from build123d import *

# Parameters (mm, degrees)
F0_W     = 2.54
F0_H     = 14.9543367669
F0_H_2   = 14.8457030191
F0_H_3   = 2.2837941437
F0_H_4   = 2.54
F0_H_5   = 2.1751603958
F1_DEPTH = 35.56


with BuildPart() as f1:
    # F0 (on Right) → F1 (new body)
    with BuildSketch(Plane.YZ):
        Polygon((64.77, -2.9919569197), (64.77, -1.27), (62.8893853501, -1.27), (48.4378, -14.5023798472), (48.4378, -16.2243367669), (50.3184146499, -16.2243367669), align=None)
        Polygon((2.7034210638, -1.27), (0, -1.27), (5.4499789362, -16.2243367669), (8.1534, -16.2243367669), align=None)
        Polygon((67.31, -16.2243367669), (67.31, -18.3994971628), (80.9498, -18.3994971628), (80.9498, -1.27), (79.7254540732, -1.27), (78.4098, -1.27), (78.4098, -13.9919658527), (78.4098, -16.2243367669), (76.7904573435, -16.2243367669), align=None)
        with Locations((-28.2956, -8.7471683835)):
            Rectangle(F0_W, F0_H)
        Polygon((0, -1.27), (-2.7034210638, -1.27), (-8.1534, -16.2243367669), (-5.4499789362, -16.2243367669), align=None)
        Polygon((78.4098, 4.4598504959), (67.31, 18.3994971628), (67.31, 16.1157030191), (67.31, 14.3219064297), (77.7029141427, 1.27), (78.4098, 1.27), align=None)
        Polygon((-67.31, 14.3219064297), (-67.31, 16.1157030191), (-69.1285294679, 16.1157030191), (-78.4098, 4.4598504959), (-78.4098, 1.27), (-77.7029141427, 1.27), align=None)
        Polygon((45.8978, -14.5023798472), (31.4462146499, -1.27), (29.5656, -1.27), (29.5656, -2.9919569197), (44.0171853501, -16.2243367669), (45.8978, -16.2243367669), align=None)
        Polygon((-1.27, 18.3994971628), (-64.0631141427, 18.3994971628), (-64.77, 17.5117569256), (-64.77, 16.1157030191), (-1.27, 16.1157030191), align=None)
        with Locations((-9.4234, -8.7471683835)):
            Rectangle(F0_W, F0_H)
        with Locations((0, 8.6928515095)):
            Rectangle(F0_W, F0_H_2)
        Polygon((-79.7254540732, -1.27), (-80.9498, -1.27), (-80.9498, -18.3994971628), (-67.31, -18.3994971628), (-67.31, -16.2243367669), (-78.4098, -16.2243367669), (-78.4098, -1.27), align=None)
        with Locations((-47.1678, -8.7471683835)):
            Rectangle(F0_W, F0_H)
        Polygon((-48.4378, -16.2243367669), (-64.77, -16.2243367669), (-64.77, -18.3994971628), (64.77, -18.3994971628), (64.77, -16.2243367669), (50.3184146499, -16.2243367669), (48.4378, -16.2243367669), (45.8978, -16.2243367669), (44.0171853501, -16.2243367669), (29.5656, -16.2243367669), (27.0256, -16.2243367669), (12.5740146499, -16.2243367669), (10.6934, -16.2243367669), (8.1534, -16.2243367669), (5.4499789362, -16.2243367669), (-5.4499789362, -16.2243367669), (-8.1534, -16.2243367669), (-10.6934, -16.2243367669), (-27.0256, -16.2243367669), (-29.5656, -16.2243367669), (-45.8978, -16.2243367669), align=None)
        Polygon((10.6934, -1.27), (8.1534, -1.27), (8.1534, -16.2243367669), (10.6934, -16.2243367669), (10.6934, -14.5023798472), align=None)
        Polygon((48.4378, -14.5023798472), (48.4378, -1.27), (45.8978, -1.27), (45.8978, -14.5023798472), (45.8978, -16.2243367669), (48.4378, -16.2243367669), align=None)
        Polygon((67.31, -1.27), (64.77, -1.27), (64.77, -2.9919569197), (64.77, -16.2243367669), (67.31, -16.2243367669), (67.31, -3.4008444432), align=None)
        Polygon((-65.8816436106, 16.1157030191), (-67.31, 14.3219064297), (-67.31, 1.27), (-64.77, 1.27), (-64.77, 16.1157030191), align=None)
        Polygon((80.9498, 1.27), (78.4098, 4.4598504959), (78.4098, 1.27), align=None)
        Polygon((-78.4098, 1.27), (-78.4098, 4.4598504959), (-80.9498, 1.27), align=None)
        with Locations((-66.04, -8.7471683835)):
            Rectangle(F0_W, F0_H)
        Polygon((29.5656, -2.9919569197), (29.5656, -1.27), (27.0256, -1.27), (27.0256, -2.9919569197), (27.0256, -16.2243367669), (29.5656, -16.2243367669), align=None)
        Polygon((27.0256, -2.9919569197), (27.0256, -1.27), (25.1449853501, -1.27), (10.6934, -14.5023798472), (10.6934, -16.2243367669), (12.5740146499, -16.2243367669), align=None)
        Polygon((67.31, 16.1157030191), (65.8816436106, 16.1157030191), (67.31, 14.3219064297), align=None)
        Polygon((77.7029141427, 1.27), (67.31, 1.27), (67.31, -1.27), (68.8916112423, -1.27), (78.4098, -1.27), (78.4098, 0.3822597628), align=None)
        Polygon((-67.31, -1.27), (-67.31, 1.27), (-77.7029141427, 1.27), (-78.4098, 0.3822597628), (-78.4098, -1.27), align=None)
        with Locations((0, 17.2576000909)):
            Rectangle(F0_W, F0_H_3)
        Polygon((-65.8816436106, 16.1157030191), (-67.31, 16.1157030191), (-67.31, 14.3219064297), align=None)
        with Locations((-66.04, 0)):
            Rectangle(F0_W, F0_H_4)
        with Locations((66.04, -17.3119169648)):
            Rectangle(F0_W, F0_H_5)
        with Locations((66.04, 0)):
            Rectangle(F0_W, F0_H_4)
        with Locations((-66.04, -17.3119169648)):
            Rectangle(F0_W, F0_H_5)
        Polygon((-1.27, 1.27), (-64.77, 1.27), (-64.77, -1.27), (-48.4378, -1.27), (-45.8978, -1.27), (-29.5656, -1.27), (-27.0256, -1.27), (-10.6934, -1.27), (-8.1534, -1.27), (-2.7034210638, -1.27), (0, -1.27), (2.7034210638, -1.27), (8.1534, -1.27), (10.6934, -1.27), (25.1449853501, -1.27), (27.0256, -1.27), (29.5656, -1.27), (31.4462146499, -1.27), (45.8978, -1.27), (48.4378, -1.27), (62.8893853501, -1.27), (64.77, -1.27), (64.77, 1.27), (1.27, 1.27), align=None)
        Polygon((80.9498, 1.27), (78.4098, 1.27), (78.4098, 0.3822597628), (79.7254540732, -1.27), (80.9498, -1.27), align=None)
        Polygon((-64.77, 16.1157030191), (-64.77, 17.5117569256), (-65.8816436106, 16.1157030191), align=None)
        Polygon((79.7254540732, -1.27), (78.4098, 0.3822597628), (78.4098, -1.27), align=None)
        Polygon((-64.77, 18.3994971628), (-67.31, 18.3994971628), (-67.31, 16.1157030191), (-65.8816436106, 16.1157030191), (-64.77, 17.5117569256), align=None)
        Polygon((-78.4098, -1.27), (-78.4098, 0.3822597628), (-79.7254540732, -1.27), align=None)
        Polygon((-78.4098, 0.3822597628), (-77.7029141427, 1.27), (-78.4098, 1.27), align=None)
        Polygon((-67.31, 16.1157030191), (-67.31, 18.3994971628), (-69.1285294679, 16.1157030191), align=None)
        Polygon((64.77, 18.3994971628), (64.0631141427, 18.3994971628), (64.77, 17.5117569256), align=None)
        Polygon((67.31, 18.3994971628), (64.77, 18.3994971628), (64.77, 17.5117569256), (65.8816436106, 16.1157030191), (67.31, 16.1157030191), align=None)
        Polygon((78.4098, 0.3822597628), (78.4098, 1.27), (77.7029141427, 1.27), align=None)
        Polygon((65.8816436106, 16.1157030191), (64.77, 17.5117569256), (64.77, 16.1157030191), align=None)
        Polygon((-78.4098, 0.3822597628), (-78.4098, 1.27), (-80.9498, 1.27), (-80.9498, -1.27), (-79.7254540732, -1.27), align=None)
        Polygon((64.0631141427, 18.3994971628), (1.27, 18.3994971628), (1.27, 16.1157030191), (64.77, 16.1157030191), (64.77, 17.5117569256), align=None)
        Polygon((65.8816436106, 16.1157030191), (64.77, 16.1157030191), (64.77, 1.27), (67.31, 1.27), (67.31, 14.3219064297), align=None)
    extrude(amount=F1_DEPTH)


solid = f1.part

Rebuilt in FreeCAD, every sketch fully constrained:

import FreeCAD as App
import Part
import Sketcher

V = App.Vector
Q = App.Units.Quantity


def add_polygon(sketch, points):
    """Adds a closed chain of lines whose ends are joined by coincident constraints."""
    first, n = sketch.GeometryCount, len(points)
    for a, b in zip(points, points[1:] + points[:1]):
        sketch.addGeometry(Part.LineSegment(App.Vector(*a, 0), App.Vector(*b, 0)), False)
    for i in range(n):
        sketch.addConstraint(Sketcher.Constraint("Coincident", first + i, 2, first + (i + 1) % n, 1))

doc = App.newDocument("Part")
body = doc.addObject("PartDesign::Body", "Body")

# Sketch on YZ plane
sketch1 = body.newObject("Sketcher::SketchObject", "Sketch")
sketch1.AttachmentSupport = (doc.getObject("YZ_Plane"), [""])
sketch1.MapMode = "FlatFace"
add_polygon(sketch1, [(-64.063114, 18.399497), (-64.77, 17.511757), (-64.77, 18.399497), (-67.31, 18.399497), (-69.128529, 16.115703), (-78.4098, 4.45985), (-80.9498, 1.27), (-80.9498, -18.399497), (80.9498, -18.399497), (80.9498, 1.27), (78.4098, 4.45985), (67.31, 18.399497)])  # lines 0-11
add_polygon(sketch1, [(67.31, 14.321906), (77.702914, 1.27), (67.31, 1.27)])  # lines 12-14
add_polygon(sketch1, [(64.77, 1.27), (1.27, 1.27), (1.27, 16.115703), (64.77, 16.115703)])  # lines 15-18
add_polygon(sketch1, [(-78.4098, -16.224337), (-78.4098, -1.27), (-67.31, -1.27), (-67.31, -16.224337)])  # lines 19-22
add_polygon(sketch1, [(-48.4378, -16.224337), (-64.77, -16.224337), (-64.77, -1.27), (-48.4378, -1.27)])  # lines 23-26
add_polygon(sketch1, [(-45.8978, -16.224337), (-45.8978, -1.27), (-29.5656, -1.27), (-29.5656, -16.224337)])  # lines 27-30
add_polygon(sketch1, [(-27.0256, -16.224337), (-27.0256, -1.27), (-10.6934, -1.27), (-10.6934, -16.224337)])  # lines 31-34
add_polygon(sketch1, [(-8.1534, -16.224337), (-8.1534, -1.27), (-2.703421, -1.27)])  # lines 35-37
add_polygon(sketch1, [(-5.449979, -16.224337), (0, -1.27), (5.449979, -16.224337)])  # lines 38-40
add_polygon(sketch1, [(8.1534, -16.224337), (2.703421, -1.27), (8.1534, -1.27)])  # lines 41-43
add_polygon(sketch1, [(27.0256, -16.224337), (12.574015, -16.224337), (27.0256, -2.991957)])  # lines 44-46
add_polygon(sketch1, [(44.017185, -16.224337), (29.5656, -16.224337), (29.5656, -2.991957)])  # lines 47-49
add_polygon(sketch1, [(64.77, -2.991957), (64.77, -16.224337), (50.318415, -16.224337)])  # lines 50-52
add_polygon(sketch1, [(67.31, -1.27), (78.4098, -1.27), (78.4098, -16.224337), (67.31, -16.224337)])  # lines 53-56
add_polygon(sketch1, [(10.6934, -14.50238), (10.6934, -1.27), (25.144985, -1.27)])  # lines 57-59
add_polygon(sketch1, [(45.8978, -14.50238), (31.446215, -1.27), (45.8978, -1.27)])  # lines 60-62
add_polygon(sketch1, [(48.4378, -14.50238), (48.4378, -1.27), (62.889385, -1.27)])  # lines 63-65
add_polygon(sketch1, [(-67.31, 1.27), (-77.702914, 1.27), (-67.31, 14.321906)])  # lines 66-68
add_polygon(sketch1, [(-64.77, 1.27), (-64.77, 16.115703), (-1.27, 16.115703), (-1.27, 1.27)])  # lines 69-72
sketch1.addConstraint([
    Sketcher.Constraint("Vertical", 1),
    Sketcher.Constraint("Horizontal", 2),
    Sketcher.Constraint("Vertical", 6),
    Sketcher.Constraint("Horizontal", 7),
    Sketcher.Constraint("Vertical", 8),
    Sketcher.Constraint("Horizontal", 11),
    Sketcher.Constraint("Horizontal", 13),
    Sketcher.Constraint("Vertical", 14),
    Sketcher.Constraint("Horizontal", 15),
    Sketcher.Constraint("Vertical", 16),
    Sketcher.Constraint("Horizontal", 17),
    Sketcher.Constraint("Vertical", 18),
    Sketcher.Constraint("Vertical", 19),
    Sketcher.Constraint("Horizontal", 20),
    Sketcher.Constraint("Vertical", 21),
    Sketcher.Constraint("Horizontal", 22),
    Sketcher.Constraint("Horizontal", 23),
    Sketcher.Constraint("Vertical", 24),
    Sketcher.Constraint("Horizontal", 25),
    Sketcher.Constraint("Vertical", 26),
    Sketcher.Constraint("Vertical", 27),
    Sketcher.Constraint("Horizontal", 28),
    Sketcher.Constraint("Vertical", 29),
    Sketcher.Constraint("Horizontal", 30),
    Sketcher.Constraint("Vertical", 31),
    Sketcher.Constraint("Horizontal", 32),
    Sketcher.Constraint("Vertical", 33),
    Sketcher.Constraint("Horizontal", 34),
    Sketcher.Constraint("Vertical", 35),
    Sketcher.Constraint("Horizontal", 36),
    Sketcher.Constraint("Horizontal", 40),
    Sketcher.Constraint("Horizontal", 42),
    Sketcher.Constraint("Vertical", 43),
    Sketcher.Constraint("Horizontal", 44),
    Sketcher.Constraint("Vertical", 46),
    Sketcher.Constraint("Horizontal", 47),
    Sketcher.Constraint("Vertical", 48),
    Sketcher.Constraint("Vertical", 50),
    Sketcher.Constraint("Horizontal", 51),
    Sketcher.Constraint("Horizontal", 53),
    Sketcher.Constraint("Vertical", 54),
    Sketcher.Constraint("Horizontal", 55),
    Sketcher.Constraint("Vertical", 56),
    Sketcher.Constraint("Vertical", 57),
    Sketcher.Constraint("Horizontal", 58),
    Sketcher.Constraint("Horizontal", 61),
    Sketcher.Constraint("Vertical", 62),
    Sketcher.Constraint("Vertical", 63),
    Sketcher.Constraint("Horizontal", 64),
    Sketcher.Constraint("Horizontal", 66),
    Sketcher.Constraint("Vertical", 68),
    Sketcher.Constraint("Vertical", 69),
    Sketcher.Constraint("Horizontal", 70),
    Sketcher.Constraint("Vertical", 71),
    Sketcher.Constraint("Horizontal", 72),
    Sketcher.Constraint("PointOnObject", 38, 2, -2),
    Sketcher.Constraint("DistanceX", 2, 2, 2, 1, Q("0.1 in")),
    Sketcher.Constraint("DistanceX", 15, 2, 15, 1, Q("2.5 in")),
    Sketcher.Constraint("DistanceX", 70, 1, 70, 2, Q("2.5 in")),
    Sketcher.Constraint("DistanceX", 7, 1, 7, 2, Q("6.374 in")),
    Sketcher.Constraint("DistanceX", 20, 1, 20, 2, Q("0.437 in")),
    Sketcher.Constraint("DistanceX", 23, 2, 23, 1, Q("0.643 in")),
    Sketcher.Constraint("DistanceX", 28, 1, 28, 2, Q("0.643 in")),
    Sketcher.Constraint("DistanceX", 32, 1, 32, 2, Q("0.643 in")),
    Sketcher.Constraint("DistanceX", 53, 1, 53, 2, Q("0.437 in")),
    Sketcher.Constraint("DistanceX", 0, 2, -1, 1, Q("2.55 in")),
    Sketcher.Constraint("DistanceY", -1, 1, 5, 2, Q("0.05 in")),
    Sketcher.Constraint("DistanceY", -1, 1, 8, 2, Q("0.05 in")),
    Sketcher.Constraint("DistanceX", -1, 1, 10, 2, Q("2.65 in")),
    Sketcher.Constraint("DistanceY", -1, 1, 12, 2, Q("0.05 in")),
    Sketcher.Constraint("DistanceX", -1, 1, 13, 2, Q("2.65 in")),
    Sketcher.Constraint("DistanceX", -1, 1, 15, 2, Q("0.05 in")),
    Sketcher.Constraint("DistanceY", -1, 1, 15, 2, Q("0.05 in")),
    Sketcher.Constraint("DistanceY", 19, 2, -1, 1, Q("0.05 in")),
    Sketcher.Constraint("DistanceX", 20, 2, -1, 1, Q("2.65 in")),
    Sketcher.Constraint("DistanceX", 23, 2, -1, 1, Q("2.55 in")),
    Sketcher.Constraint("DistanceY", 24, 2, -1, 1, Q("0.05 in")),
    Sketcher.Constraint("DistanceY", 27, 2, -1, 1, Q("0.05 in")),
    Sketcher.Constraint("DistanceY", 31, 2, -1, 1, Q("0.05 in")),
    Sketcher.Constraint("DistanceY", 35, 2, -1, 1, Q("0.05 in")),
    Sketcher.Constraint("DistanceY", 38, 2, -1, 1, Q("0.05 in")),
    Sketcher.Constraint("DistanceY", 41, 2, -1, 1, Q("0.05 in")),
    Sketcher.Constraint("DistanceX", -1, 1, 50, 2, Q("2.55 in")),
    Sketcher.Constraint("DistanceY", 53, 2, -1, 1, Q("0.05 in")),
    Sketcher.Constraint("DistanceX", -1, 1, 55, 2, Q("2.65 in")),
    Sketcher.Constraint("DistanceY", 57, 2, -1, 1, Q("0.05 in")),
    Sketcher.Constraint("DistanceY", 60, 2, -1, 1, Q("0.05 in")),
    Sketcher.Constraint("DistanceY", 63, 2, -1, 1, Q("0.05 in")),
    Sketcher.Constraint("DistanceY", -1, 1, 66, 2, Q("0.05 in")),
    Sketcher.Constraint("DistanceX", 67, 2, -1, 1, Q("2.65 in")),
    Sketcher.Constraint("DistanceX", 69, 2, -1, 1, Q("2.55 in")),
    Sketcher.Constraint("DistanceY", -1, 1, 71, 2, Q("0.05 in")),
    Sketcher.Constraint("DistanceX", 4, 2, -1, 1, Q("3.087 in")),
    Sketcher.Constraint("DistanceX", 5, 2, -1, 1, Q("3.187 in")),
    Sketcher.Constraint("DistanceX", -1, 1, 9, 2, Q("3.087 in")),
    Sketcher.Constraint("DistanceX", 27, 2, -1, 1, Q("1.807 in")),
    Sketcher.Constraint("DistanceX", 31, 2, -1, 1, Q("1.064 in")),
    Sketcher.Constraint("DistanceX", 35, 2, -1, 1, Q("0.321 in")),
    Sketcher.Constraint("DistanceX", -1, 1, 42, 2, Q("0.321 in")),
    Sketcher.Constraint("DistanceX", -1, 1, 45, 2, Q("1.064 in")),
    Sketcher.Constraint("DistanceX", -1, 1, 47, 2, Q("1.164 in")),
    Sketcher.Constraint("DistanceX", -1, 1, 57, 2, Q("0.421 in")),
    Sketcher.Constraint("DistanceX", -1, 1, 61, 2, Q("1.807 in")),
    Sketcher.Constraint("DistanceX", -1, 1, 63, 2, Q("1.907 in")),
    Sketcher.Constraint("Distance", 0, Q("1.1348 mm")),
    Sketcher.Constraint("DistanceX", 36, 1, 36, 2, Q("5.449979 mm")),
    Sketcher.Constraint("DistanceX", 42, 1, 42, 2, Q("5.449979 mm")),
    Sketcher.Constraint("DistanceY", 1, 1, 1, 2, Q("0.88774 mm")),
    Sketcher.Constraint("DistanceY", 46, 2, 46, 1, Q("13.23238 mm")),
    Sketcher.Constraint("DistanceY", 48, 1, 48, 2, Q("13.23238 mm")),
    Sketcher.Constraint("DistanceY", 50, 2, 50, 1, Q("13.23238 mm")),
    Sketcher.Constraint("DistanceY", 57, 1, 57, 2, Q("13.23238 mm")),
    Sketcher.Constraint("DistanceY", 62, 2, 62, 1, Q("13.23238 mm")),
    Sketcher.Constraint("DistanceY", 63, 1, 63, 2, Q("13.23238 mm")),
    Sketcher.Constraint("Distance", 5, Q("4.077591 mm")),
    Sketcher.Constraint("Distance", 9, Q("4.077591 mm")),
    Sketcher.Constraint("Distance", 10, Q("17.819072 mm")),
    Sketcher.Constraint("Distance", 12, Q("16.684272 mm")),
    Sketcher.Constraint("Distance", 67, Q("16.684272 mm")),
    Sketcher.Constraint("DistanceX", 11, 2, 11, 1, Q("131.373114 mm")),
    Sketcher.Constraint("DistanceX", 13, 2, 13, 1, Q("10.392914 mm")),
    Sketcher.Constraint("DistanceX", 40, 2, 40, 1, Q("10.899958 mm")),
    Sketcher.Constraint("DistanceX", 44, 2, 44, 1, Q("14.451585 mm")),
    Sketcher.Constraint("DistanceX", 47, 2, 47, 1, Q("14.451585 mm")),
    Sketcher.Constraint("DistanceX", 51, 2, 51, 1, Q("14.451585 mm")),
    Sketcher.Constraint("DistanceX", 58, 1, 58, 2, Q("14.451585 mm")),
    Sketcher.Constraint("DistanceX", 61, 1, 61, 2, Q("14.451585 mm")),
    Sketcher.Constraint("DistanceX", 64, 1, 64, 2, Q("14.451585 mm")),
    Sketcher.Constraint("DistanceX", 66, 2, 66, 1, Q("10.392914 mm")),
    Sketcher.Constraint("DistanceY", 6, 2, 6, 1, Q("19.669497 mm")),
    Sketcher.Constraint("DistanceY", 16, 1, 16, 2, Q("14.845703 mm")),
    Sketcher.Constraint("DistanceY", 19, 1, 19, 2, Q("14.954337 mm")),
    Sketcher.Constraint("DistanceY", 24, 1, 24, 2, Q("14.954337 mm")),
    Sketcher.Constraint("DistanceY", 27, 1, 27, 2, Q("14.954337 mm")),
    Sketcher.Constraint("DistanceY", 31, 1, 31, 2, Q("14.954337 mm")),
    Sketcher.Constraint("DistanceY", 35, 1, 35, 2, Q("14.954337 mm")),
    Sketcher.Constraint("DistanceY", 43, 2, 43, 1, Q("14.954337 mm")),
    Sketcher.Constraint("DistanceY", 54, 2, 54, 1, Q("14.954337 mm")),
    Sketcher.Constraint("DistanceY", 69, 1, 69, 2, Q("14.845703 mm")),
    Sketcher.Constraint("DistanceX", 3, 2, -1, 1, Q("69.128529 mm")),
    Sketcher.Constraint("DistanceX", -1, 1, 39, 2, Q("5.449979 mm")),
    Sketcher.Constraint("Distance", 3, Q("2.919378 mm")),
    Sketcher.Constraint("Distance", 38, Q("15.916484 mm")),
    Sketcher.Constraint("DistanceY", 44, 2, -1, 1, Q("16.224337 mm")),
    Sketcher.Constraint("DistanceY", 47, 2, -1, 1, Q("16.224337 mm")),
    Sketcher.Constraint("DistanceY", 50, 2, -1, 1, Q("16.224337 mm")),
])
pad1 = body.newObject("PartDesign::Pad", "Pad")
pad1.Profile = sketch1
pad1.Length = Q("1.4 in")

doc.recompute()
